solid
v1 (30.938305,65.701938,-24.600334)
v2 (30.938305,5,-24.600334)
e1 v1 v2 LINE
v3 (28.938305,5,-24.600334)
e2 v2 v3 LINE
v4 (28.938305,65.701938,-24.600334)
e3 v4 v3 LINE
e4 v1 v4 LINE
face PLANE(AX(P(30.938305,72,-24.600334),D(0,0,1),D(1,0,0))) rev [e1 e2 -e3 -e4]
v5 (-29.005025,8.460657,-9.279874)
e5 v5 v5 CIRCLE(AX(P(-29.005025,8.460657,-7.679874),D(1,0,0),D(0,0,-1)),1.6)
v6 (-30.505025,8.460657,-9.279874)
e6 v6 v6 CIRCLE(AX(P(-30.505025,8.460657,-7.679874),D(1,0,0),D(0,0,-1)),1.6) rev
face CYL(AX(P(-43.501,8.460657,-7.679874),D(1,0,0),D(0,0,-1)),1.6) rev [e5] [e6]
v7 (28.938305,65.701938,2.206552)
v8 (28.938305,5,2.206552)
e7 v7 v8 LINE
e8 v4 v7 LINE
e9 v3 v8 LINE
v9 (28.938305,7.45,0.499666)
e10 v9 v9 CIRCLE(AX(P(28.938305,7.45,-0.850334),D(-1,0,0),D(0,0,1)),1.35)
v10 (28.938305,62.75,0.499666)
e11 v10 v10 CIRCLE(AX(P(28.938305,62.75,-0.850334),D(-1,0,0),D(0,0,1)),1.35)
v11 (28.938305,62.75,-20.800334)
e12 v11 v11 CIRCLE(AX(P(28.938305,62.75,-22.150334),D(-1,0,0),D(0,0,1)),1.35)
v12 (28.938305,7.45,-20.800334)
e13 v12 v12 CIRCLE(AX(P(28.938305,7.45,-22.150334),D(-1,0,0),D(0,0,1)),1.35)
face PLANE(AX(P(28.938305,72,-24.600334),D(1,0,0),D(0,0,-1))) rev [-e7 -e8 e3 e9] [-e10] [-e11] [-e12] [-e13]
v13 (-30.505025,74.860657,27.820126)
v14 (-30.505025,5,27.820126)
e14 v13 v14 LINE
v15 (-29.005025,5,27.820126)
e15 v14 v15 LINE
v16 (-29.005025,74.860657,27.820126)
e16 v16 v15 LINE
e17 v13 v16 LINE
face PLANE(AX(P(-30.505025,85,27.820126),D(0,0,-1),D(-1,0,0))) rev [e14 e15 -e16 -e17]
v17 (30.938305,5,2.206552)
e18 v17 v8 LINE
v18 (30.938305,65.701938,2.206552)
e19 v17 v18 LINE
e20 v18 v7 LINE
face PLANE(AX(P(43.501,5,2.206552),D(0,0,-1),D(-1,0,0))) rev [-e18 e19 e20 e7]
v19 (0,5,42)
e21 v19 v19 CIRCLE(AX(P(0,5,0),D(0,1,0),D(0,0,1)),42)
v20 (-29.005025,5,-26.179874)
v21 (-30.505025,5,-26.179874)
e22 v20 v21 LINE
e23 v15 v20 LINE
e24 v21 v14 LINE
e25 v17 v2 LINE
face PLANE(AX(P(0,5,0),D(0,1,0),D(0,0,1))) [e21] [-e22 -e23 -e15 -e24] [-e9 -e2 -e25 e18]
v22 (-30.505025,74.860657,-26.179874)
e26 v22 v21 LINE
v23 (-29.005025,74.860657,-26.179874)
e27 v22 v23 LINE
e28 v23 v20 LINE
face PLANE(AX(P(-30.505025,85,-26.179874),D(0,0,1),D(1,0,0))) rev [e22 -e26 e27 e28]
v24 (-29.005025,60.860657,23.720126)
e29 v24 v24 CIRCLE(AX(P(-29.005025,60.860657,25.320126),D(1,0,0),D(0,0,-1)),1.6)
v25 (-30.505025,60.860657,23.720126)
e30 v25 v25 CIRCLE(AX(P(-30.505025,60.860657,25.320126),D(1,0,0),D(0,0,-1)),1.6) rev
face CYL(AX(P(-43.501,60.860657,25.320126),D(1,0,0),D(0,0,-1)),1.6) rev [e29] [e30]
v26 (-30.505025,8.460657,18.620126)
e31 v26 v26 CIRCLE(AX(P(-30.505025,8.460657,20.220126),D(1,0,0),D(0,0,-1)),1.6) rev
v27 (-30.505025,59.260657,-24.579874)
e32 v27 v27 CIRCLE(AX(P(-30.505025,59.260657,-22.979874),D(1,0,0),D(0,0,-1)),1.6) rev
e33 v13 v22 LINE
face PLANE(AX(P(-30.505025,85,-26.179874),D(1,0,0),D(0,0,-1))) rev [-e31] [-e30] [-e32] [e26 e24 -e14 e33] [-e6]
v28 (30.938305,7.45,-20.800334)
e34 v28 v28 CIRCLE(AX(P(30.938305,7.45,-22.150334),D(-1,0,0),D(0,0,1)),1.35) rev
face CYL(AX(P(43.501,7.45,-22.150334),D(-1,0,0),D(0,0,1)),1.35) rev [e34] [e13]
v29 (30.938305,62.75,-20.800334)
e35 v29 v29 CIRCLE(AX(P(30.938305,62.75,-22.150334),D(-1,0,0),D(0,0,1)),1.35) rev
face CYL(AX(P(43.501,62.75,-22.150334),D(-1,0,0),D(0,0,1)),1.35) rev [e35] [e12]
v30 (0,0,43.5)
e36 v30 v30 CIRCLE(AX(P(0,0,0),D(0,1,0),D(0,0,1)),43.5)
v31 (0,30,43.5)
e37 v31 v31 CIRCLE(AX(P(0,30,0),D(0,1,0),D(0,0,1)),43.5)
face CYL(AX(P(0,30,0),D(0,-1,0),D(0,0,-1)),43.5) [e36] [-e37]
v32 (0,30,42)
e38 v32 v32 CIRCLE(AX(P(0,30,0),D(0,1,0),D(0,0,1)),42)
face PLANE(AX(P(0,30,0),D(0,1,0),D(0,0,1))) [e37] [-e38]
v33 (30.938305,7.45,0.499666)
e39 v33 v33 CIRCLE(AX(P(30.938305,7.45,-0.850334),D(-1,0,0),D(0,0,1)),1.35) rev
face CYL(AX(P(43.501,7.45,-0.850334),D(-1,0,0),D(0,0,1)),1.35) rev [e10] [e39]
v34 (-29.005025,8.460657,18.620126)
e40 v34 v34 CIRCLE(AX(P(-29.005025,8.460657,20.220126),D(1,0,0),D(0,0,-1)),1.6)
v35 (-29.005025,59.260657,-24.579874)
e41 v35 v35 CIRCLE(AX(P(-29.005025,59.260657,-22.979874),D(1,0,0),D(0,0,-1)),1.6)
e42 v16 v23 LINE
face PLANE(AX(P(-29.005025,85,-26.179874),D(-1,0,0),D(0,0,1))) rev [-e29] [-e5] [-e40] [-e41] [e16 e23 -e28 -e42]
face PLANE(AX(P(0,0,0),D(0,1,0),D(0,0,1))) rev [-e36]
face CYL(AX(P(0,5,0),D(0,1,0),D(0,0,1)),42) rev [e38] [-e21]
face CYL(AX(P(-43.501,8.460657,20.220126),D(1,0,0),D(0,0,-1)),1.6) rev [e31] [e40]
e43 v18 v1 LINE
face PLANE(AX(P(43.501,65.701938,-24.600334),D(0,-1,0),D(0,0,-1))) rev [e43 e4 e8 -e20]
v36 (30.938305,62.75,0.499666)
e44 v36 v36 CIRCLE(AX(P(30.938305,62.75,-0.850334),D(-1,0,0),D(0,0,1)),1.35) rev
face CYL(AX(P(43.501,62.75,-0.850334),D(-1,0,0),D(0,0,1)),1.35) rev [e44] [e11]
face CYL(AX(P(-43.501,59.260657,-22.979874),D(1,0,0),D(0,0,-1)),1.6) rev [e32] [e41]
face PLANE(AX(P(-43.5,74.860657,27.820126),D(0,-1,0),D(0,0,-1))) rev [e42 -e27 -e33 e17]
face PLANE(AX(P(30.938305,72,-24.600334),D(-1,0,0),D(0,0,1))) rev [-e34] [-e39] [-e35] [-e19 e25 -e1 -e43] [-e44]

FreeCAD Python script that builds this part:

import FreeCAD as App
import Part
import Sketcher
Q = App.Units.Quantity


def add_polygon(sketch, points):
    """Adds a closed chain of lines whose ends are joined by coincident constraints."""
    first, n = sketch.GeometryCount, len(points)
    for a, b in zip(points, points[1:] + points[:1]):
        sketch.addGeometry(Part.LineSegment(App.Vector(*a, 0), App.Vector(*b, 0)), False)
    for i in range(n):
        sketch.addConstraint(Sketcher.Constraint("Coincident", first + i, 2, first + (i + 1) % n, 1))

doc = App.newDocument("Part")
body = doc.addObject("PartDesign::Body", "Body")

# Sketch on XZ plane
sketch1 = doc.addObject("Sketcher::SketchObject", "Sketch")
body.addObject(sketch1)
sketch1.AttachmentSupport = (doc.XZ_Plane, [""])
sketch1.MapMode = "FlatFace"
sketch1.addGeometry(Part.Circle(App.Vector(0, 0, 0), App.Vector(0, 0, 1), 44), False)
sketch1.addConstraint([
    Sketcher.Constraint("Coincident", 0, 3, -1, 1),
    Sketcher.Constraint("Diameter", 0, Q("87 mm")),
])
pad1 = doc.addObject("PartDesign::Pad", "Pad")
body.addObject(pad1)
pad1.Profile = sketch1
pad1.Length = 30
pad1.Reversed = True

# Sketch on XZ plane
sketch2 = doc.addObject("Sketcher::SketchObject", "Sketch001")
body.addObject(sketch2)
sketch2.AttachmentSupport = (doc.XZ_Plane, [""])
sketch2.MapMode = "FlatFace"
sketch2.AttachmentOffset = App.Placement(App.Vector(0, 0, -30), App.Rotation())
sketch2.addGeometry(Part.Circle(App.Vector(0, 0, 0), App.Vector(0, 0, 1), 42), False)
sketch2.addConstraint([
    Sketcher.Constraint("Coincident", 0, 3, -1, 1),
    Sketcher.Constraint("Diameter", 0, Q("84 mm")),
])
pocket1 = doc.addObject("PartDesign::Pocket", "Pocket")
body.addObject(pocket1)
pocket1.Profile = sketch2
pocket1.Type = "TwoLengths"
pocket1.Length = 1
pocket1.Length2 = 25

# Sketch on XZ plane
sketch3 = doc.addObject("Sketcher::SketchObject", "Sketch002")
body.addObject(sketch3)
sketch3.AttachmentSupport = (doc.XZ_Plane, [""])
sketch3.MapMode = "FlatFace"
sketch3.AttachmentOffset = App.Placement(App.Vector(0, 0, -5), App.Rotation())
add_polygon(sketch3, [(-30.5, -26.2), (-30.5, 27.8), (-29, 27.8), (-29, -26.2)])  # lines 0-3
sketch3.addConstraint([
    Sketcher.Constraint("Vertical", 0),
    Sketcher.Constraint("Horizontal", 1),
    Sketcher.Constraint("Vertical", 2),
    Sketcher.Constraint("Horizontal", 3),
    Sketcher.Constraint("DistanceY", 0, 1, 0, 2, Q("54 mm")),
    Sketcher.Constraint("DistanceX", 1, 1, 1, 2, Q("1.5 mm")),
    Sketcher.Constraint("DistanceX", 0, 2, -1, 1, Q("30.505025 mm")),
    Sketcher.Constraint("DistanceY", -1, 1, 0, 2, Q("27.820126 mm")),
])
pad2 = doc.addObject("PartDesign::Pad", "Pad001")
body.addObject(pad2)
pad2.Profile = sketch3
pad2.Length = 80
pad2.Reversed = True

# Sketch on YZ plane
sketch4 = doc.addObject("Sketcher::SketchObject", "Sketch003")
body.addObject(sketch4)
sketch4.AttachmentSupport = (doc.YZ_Plane, [""])
sketch4.MapMode = "FlatFace"
sketch4.AttachmentOffset = App.Placement(App.Vector(0, 0, -29.005025), App.Rotation())
add_polygon(sketch4, [(85, 28), (79, 28), (79, -26), (85, -26)])  # lines 0-3
sketch4.addConstraint([
    Sketcher.Constraint("Horizontal", 0),
    Sketcher.Constraint("Vertical", 1),
    Sketcher.Constraint("Horizontal", 2),
    Sketcher.Constraint("Vertical", 3),
    Sketcher.Constraint("DistanceY", 1, 2, 1, 1, Q("54 mm")),
    Sketcher.Constraint("DistanceX", -1, 1, 2, 2, Q("85 mm")),
    Sketcher.Constraint("DistanceX", 0, 2, 0, 1, Q("6.268708 mm")),
    Sketcher.Constraint("DistanceY", -1, 1, 0, 2, Q("27.820126 mm")),
])
pocket2 = doc.addObject("PartDesign::Pocket", "Pocket001")
body.addObject(pocket2)
pocket2.Profile = sketch4
pocket2.Type = "ThroughAll"

# Sketch on YZ plane
sketch5 = doc.addObject("Sketcher::SketchObject", "Sketch004")
body.addObject(sketch5)
sketch5.AttachmentSupport = (doc.YZ_Plane, [""])
sketch5.MapMode = "FlatFace"
sketch5.AttachmentOffset = App.Placement(App.Vector(0, 0, -29.005025), App.Rotation())
add_polygon(sketch5, [(78.7, 27.8), (74.9, 27.8), (74.9, -26.2), (78.7, -26.2)])  # lines 0-3
sketch5.addConstraint([
    Sketcher.Constraint("Horizontal", 0),
    Sketcher.Constraint("Vertical", 1),
    Sketcher.Constraint("Horizontal", 2),
    Sketcher.Constraint("Vertical", 3),
    Sketcher.Constraint("DistanceY", 1, 2, 1, 1, Q("54 mm")),
    Sketcher.Constraint("DistanceX", 0, 2, 0, 1, Q("3.870635 mm")),
    Sketcher.Constraint("DistanceX", -1, 1, 0, 2, Q("74.860657 mm")),
    Sketcher.Constraint("DistanceY", -1, 1, 0, 2, Q("27.820126 mm")),
])
pocket3 = doc.addObject("PartDesign::Pocket", "Pocket002")
body.addObject(pocket3)
pocket3.Profile = sketch5
pocket3.Type = "ThroughAll"

# Sketch on YZ plane
sketch6 = doc.addObject("Sketcher::SketchObject", "Sketch005")
body.addObject(sketch6)
sketch6.AttachmentSupport = (doc.YZ_Plane, [""])
sketch6.MapMode = "FlatFace"
sketch6.AttachmentOffset = App.Placement(App.Vector(0, 0, -29.005025), App.Rotation())
sketch6.addGeometry(Part.Circle(App.Vector(60.9, 25.3, 0), App.Vector(0, 0, 1), 1.6), False)
sketch6.addConstraint([
    Sketcher.Constraint("Diameter", 0, Q("3.2 mm")),
    Sketcher.Constraint("DistanceX", -1, 1, 0, 3, Q("60.860657 mm")),
    Sketcher.Constraint("DistanceY", -1, 1, 0, 3, Q("25.320126 mm")),
])
pocket4 = doc.addObject("PartDesign::Pocket", "Pocket003")
body.addObject(pocket4)
pocket4.Profile = sketch6
pocket4.Type = "UpToFirst"

# Sketch on YZ plane
sketch7 = doc.addObject("Sketcher::SketchObject", "Sketch006")
body.addObject(sketch7)
sketch7.AttachmentSupport = (doc.YZ_Plane, [""])
sketch7.MapMode = "FlatFace"
sketch7.AttachmentOffset = App.Placement(App.Vector(0, 0, -29.005025), App.Rotation())
sketch7.addGeometry(Part.Circle(App.Vector(59.3, -23, 0), App.Vector(0, 0, 1), 1.6), False)
sketch7.addConstraint([
    Sketcher.Constraint("Diameter", 0, Q("3.2 mm")),
    Sketcher.Constraint("DistanceX", -1, 1, 0, 3, Q("59.260657 mm")),
    Sketcher.Constraint("DistanceY", 0, 3, -1, 1, Q("22.979874 mm")),
])
pocket5 = doc.addObject("PartDesign::Pocket", "Pocket004")
body.addObject(pocket5)
pocket5.Profile = sketch7
pocket5.Type = "UpToFirst"

# Sketch on YZ plane
sketch8 = doc.addObject("Sketcher::SketchObject", "Sketch007")
body.addObject(sketch8)
sketch8.AttachmentSupport = (doc.YZ_Plane, [""])
sketch8.MapMode = "FlatFace"
sketch8.AttachmentOffset = App.Placement(App.Vector(0, 0, -29.005025), App.Rotation())
sketch8.addGeometry(Part.Circle(App.Vector(8.5, -7.7, 0), App.Vector(0, 0, 1), 1.6), False)
sketch8.addConstraint([
    Sketcher.Constraint("Diameter", 0, Q("3.2 mm")),
    Sketcher.Constraint("DistanceX", -1, 1, 0, 3, Q("8.460657 mm")),
    Sketcher.Constraint("DistanceY", 0, 3, -1, 1, Q("7.679874 mm")),
])
pocket6 = doc.addObject("PartDesign::Pocket", "Pocket005")
body.addObject(pocket6)
pocket6.Profile = sketch8
pocket6.Type = "UpToFirst"

# Sketch on YZ plane
sketch9 = doc.addObject("Sketcher::SketchObject", "Sketch008")
body.addObject(sketch9)
sketch9.AttachmentSupport = (doc.YZ_Plane, [""])
sketch9.MapMode = "FlatFace"
sketch9.AttachmentOffset = App.Placement(App.Vector(0, 0, -29.005025), App.Rotation())
sketch9.addGeometry(Part.Circle(App.Vector(8.5, 20.2, 0), App.Vector(0, 0, 1), 1.6), False)
sketch9.addConstraint([
    Sketcher.Constraint("Diameter", 0, Q("3.2 mm")),
    Sketcher.Constraint("DistanceX", -1, 1, 0, 3, Q("8.460657 mm")),
    Sketcher.Constraint("DistanceY", -1, 1, 0, 3, Q("20.220126 mm")),
])
pocket7 = doc.addObject("PartDesign::Pocket", "Pocket006")
body.addObject(pocket7)
pocket7.Profile = sketch9
pocket7.Type = "UpToFirst"

# Sketch on XZ plane
sketch10 = doc.addObject("Sketcher::SketchObject", "Sketch009")
body.addObject(sketch10)
sketch10.AttachmentSupport = (doc.XZ_Plane, [""])
sketch10.MapMode = "FlatFace"
sketch10.AttachmentOffset = App.Placement(App.Vector(0, 0, -5), App.Rotation())
add_polygon(sketch10, [(28.9, -24.6), (28.9, 4.4), (30.9, 4.4), (30.9, -24.6)])  # lines 0-3
sketch10.addConstraint([
    Sketcher.Constraint("Vertical", 0),
    Sketcher.Constraint("Horizontal", 1),
    Sketcher.Constraint("Vertical", 2),
    Sketcher.Constraint("Horizontal", 3),
    Sketcher.Constraint("DistanceX", 1, 1, 1, 2, Q("2 mm")),
    Sketcher.Constraint("DistanceY", 0, 1, 0, 2, Q("28.990762 mm")),
    Sketcher.Constraint("DistanceX", -1, 1, 0, 2, Q("28.938305 mm")),
    Sketcher.Constraint("DistanceY", -1, 1, 0, 2, Q("4.390428 mm")),
])
pad3 = doc.addObject("PartDesign::Pad", "Pad002")
body.addObject(pad3)
pad3.Profile = sketch10
pad3.Length = 67
pad3.Reversed = True

# Sketch on YZ plane
sketch11 = doc.addObject("Sketcher::SketchObject", "Sketch010")
body.addObject(sketch11)
sketch11.AttachmentSupport = (doc.YZ_Plane, [""])
sketch11.MapMode = "FlatFace"
sketch11.AttachmentOffset = App.Placement(App.Vector(0, 0, 28.938305), App.Rotation())
add_polygon(sketch11, [(72, -25), (66, -25), (66, 4), (72, 4)])  # lines 0-3
sketch11.addConstraint([
    Sketcher.Constraint("Horizontal", 0),
    Sketcher.Constraint("Vertical", 1),
    Sketcher.Constraint("Horizontal", 2),
    Sketcher.Constraint("Vertical", 3),
    Sketcher.Constraint("DistanceX", -1, 1, 2, 2, Q("72 mm")),
    Sketcher.Constraint("DistanceY", 1, 1, 1, 2, Q("28.990762 mm")),
    Sketcher.Constraint("DistanceX", 0, 2, 0, 1, Q("6.298062 mm")),
    Sketcher.Constraint("DistanceY", 0, 2, -1, 1, Q("24.600334 mm")),
])
pocket8 = doc.addObject("PartDesign::Pocket", "Pocket007")
body.addObject(pocket8)
pocket8.Profile = sketch11
pocket8.Type = "UpToFirst"
pocket8.Reversed = True

# Sketch on YZ plane
sketch12 = doc.addObject("Sketcher::SketchObject", "Sketch011")
body.addObject(sketch12)
sketch12.AttachmentSupport = (doc.YZ_Plane, [""])
sketch12.MapMode = "FlatFace"
sketch12.AttachmentOffset = App.Placement(App.Vector(0, 0, 28.938305), App.Rotation())
add_polygon(sketch12, [(65.7, 2.2), (5, 2.2), (5, 4.4), (65.7, 4.4)])  # lines 0-3
sketch12.addConstraint([
    Sketcher.Constraint("Horizontal", 0),
    Sketcher.Constraint("Vertical", 1),
    Sketcher.Constraint("Horizontal", 2),
    Sketcher.Constraint("Vertical", 3),
    Sketcher.Constraint("DistanceX", -1, 1, 0, 2, Q("5 mm")),
    Sketcher.Constraint("DistanceX", 0, 2, 0, 1, Q("60.701938 mm")),
    Sketcher.Constraint("DistanceY", 1, 1, 1, 2, Q("2.183875 mm")),
    Sketcher.Constraint("DistanceY", -1, 1, 0, 2, Q("2.206552 mm")),
])
pocket9 = doc.addObject("PartDesign::Pocket", "Pocket008")
body.addObject(pocket9)
pocket9.Profile = sketch12
pocket9.Type = "UpToFirst"
pocket9.Reversed = True

# Sketch on YZ plane
sketch13 = doc.addObject("Sketcher::SketchObject", "Sketch012")
body.addObject(sketch13)
sketch13.AttachmentSupport = (doc.YZ_Plane, [""])
sketch13.MapMode = "FlatFace"
sketch13.AttachmentOffset = App.Placement(App.Vector(0, 0, 28.938305), App.Rotation())
sketch13.addGeometry(Part.Circle(App.Vector(62.8, -22.2, 0), App.Vector(0, 0, 1), 1.4), False)
sketch13.addConstraint([
    Sketcher.Constraint("Diameter", 0, Q("2.7 mm")),
    Sketcher.Constraint("DistanceX", -1, 1, 0, 3, Q("62.75 mm")),
    Sketcher.Constraint("DistanceY", 0, 3, -1, 1, Q("22.150334 mm")),
])
pocket10 = doc.addObject("PartDesign::Pocket", "Pocket009")
body.addObject(pocket10)
pocket10.Profile = sketch13
pocket10.Type = "UpToFirst"
pocket10.Reversed = True

# Sketch on YZ plane
sketch14 = doc.addObject("Sketcher::SketchObject", "Sketch013")
body.addObject(sketch14)
sketch14.AttachmentSupport = (doc.YZ_Plane, [""])
sketch14.MapMode = "FlatFace"
sketch14.AttachmentOffset = App.Placement(App.Vector(0, 0, 28.938305), App.Rotation())
sketch14.addGeometry(Part.Circle(App.Vector(62.8, -0.9, 0), App.Vector(0, 0, 1), 1.4), False)
sketch14.addConstraint([
    Sketcher.Constraint("Diameter", 0, Q("2.7 mm")),
    Sketcher.Constraint("DistanceX", -1, 1, 0, 3, Q("62.75 mm")),
    Sketcher.Constraint("DistanceY", 0, 3, -1, 1, Q("0.850334 mm")),
])
pocket11 = doc.addObject("PartDesign::Pocket", "Pocket010")
body.addObject(pocket11)
pocket11.Profile = sketch14
pocket11.Type = "UpToFirst"
pocket11.Reversed = True

# Sketch on YZ plane
sketch15 = doc.addObject("Sketcher::SketchObject", "Sketch014")
body.addObject(sketch15)
sketch15.AttachmentSupport = (doc.YZ_Plane, [""])
sketch15.MapMode = "FlatFace"
sketch15.AttachmentOffset = App.Placement(App.Vector(0, 0, 28.938305), App.Rotation())
sketch15.addGeometry(Part.Circle(App.Vector(7.5, -22.2, 0), App.Vector(0, 0, 1), 1.4), False)
sketch15.addConstraint([
    Sketcher.Constraint("Diameter", 0, Q("2.7 mm")),
    Sketcher.Constraint("DistanceX", -1, 1, 0, 3, Q("7.45 mm")),
    Sketcher.Constraint("DistanceY", 0, 3, -1, 1, Q("22.150334 mm")),
])
pocket12 = doc.addObject("PartDesign::Pocket", "Pocket011")
body.addObject(pocket12)
pocket12.Profile = sketch15
pocket12.Type = "UpToFirst"
pocket12.Reversed = True

# Sketch on YZ plane
sketch16 = doc.addObject("Sketcher::SketchObject", "Sketch015")
body.addObject(sketch16)
sketch16.AttachmentSupport = (doc.YZ_Plane, [""])
sketch16.MapMode = "FlatFace"
sketch16.AttachmentOffset = App.Placement(App.Vector(0, 0, 28.938305), App.Rotation())
sketch16.addGeometry(Part.Circle(App.Vector(7.5, -0.9, 0), App.Vector(0, 0, 1), 1.4), False)
sketch16.addConstraint([
    Sketcher.Constraint("Diameter", 0, Q("2.7 mm")),
    Sketcher.Constraint("DistanceX", -1, 1, 0, 3, Q("7.45 mm")),
    Sketcher.Constraint("DistanceY", 0, 3, -1, 1, Q("0.850334 mm")),
])
pocket13 = doc.addObject("PartDesign::Pocket", "Pocket012")
body.addObject(pocket13)
pocket13.Profile = sketch16
pocket13.Type = "UpToFirst"
pocket13.Reversed = True

doc.recompute()
